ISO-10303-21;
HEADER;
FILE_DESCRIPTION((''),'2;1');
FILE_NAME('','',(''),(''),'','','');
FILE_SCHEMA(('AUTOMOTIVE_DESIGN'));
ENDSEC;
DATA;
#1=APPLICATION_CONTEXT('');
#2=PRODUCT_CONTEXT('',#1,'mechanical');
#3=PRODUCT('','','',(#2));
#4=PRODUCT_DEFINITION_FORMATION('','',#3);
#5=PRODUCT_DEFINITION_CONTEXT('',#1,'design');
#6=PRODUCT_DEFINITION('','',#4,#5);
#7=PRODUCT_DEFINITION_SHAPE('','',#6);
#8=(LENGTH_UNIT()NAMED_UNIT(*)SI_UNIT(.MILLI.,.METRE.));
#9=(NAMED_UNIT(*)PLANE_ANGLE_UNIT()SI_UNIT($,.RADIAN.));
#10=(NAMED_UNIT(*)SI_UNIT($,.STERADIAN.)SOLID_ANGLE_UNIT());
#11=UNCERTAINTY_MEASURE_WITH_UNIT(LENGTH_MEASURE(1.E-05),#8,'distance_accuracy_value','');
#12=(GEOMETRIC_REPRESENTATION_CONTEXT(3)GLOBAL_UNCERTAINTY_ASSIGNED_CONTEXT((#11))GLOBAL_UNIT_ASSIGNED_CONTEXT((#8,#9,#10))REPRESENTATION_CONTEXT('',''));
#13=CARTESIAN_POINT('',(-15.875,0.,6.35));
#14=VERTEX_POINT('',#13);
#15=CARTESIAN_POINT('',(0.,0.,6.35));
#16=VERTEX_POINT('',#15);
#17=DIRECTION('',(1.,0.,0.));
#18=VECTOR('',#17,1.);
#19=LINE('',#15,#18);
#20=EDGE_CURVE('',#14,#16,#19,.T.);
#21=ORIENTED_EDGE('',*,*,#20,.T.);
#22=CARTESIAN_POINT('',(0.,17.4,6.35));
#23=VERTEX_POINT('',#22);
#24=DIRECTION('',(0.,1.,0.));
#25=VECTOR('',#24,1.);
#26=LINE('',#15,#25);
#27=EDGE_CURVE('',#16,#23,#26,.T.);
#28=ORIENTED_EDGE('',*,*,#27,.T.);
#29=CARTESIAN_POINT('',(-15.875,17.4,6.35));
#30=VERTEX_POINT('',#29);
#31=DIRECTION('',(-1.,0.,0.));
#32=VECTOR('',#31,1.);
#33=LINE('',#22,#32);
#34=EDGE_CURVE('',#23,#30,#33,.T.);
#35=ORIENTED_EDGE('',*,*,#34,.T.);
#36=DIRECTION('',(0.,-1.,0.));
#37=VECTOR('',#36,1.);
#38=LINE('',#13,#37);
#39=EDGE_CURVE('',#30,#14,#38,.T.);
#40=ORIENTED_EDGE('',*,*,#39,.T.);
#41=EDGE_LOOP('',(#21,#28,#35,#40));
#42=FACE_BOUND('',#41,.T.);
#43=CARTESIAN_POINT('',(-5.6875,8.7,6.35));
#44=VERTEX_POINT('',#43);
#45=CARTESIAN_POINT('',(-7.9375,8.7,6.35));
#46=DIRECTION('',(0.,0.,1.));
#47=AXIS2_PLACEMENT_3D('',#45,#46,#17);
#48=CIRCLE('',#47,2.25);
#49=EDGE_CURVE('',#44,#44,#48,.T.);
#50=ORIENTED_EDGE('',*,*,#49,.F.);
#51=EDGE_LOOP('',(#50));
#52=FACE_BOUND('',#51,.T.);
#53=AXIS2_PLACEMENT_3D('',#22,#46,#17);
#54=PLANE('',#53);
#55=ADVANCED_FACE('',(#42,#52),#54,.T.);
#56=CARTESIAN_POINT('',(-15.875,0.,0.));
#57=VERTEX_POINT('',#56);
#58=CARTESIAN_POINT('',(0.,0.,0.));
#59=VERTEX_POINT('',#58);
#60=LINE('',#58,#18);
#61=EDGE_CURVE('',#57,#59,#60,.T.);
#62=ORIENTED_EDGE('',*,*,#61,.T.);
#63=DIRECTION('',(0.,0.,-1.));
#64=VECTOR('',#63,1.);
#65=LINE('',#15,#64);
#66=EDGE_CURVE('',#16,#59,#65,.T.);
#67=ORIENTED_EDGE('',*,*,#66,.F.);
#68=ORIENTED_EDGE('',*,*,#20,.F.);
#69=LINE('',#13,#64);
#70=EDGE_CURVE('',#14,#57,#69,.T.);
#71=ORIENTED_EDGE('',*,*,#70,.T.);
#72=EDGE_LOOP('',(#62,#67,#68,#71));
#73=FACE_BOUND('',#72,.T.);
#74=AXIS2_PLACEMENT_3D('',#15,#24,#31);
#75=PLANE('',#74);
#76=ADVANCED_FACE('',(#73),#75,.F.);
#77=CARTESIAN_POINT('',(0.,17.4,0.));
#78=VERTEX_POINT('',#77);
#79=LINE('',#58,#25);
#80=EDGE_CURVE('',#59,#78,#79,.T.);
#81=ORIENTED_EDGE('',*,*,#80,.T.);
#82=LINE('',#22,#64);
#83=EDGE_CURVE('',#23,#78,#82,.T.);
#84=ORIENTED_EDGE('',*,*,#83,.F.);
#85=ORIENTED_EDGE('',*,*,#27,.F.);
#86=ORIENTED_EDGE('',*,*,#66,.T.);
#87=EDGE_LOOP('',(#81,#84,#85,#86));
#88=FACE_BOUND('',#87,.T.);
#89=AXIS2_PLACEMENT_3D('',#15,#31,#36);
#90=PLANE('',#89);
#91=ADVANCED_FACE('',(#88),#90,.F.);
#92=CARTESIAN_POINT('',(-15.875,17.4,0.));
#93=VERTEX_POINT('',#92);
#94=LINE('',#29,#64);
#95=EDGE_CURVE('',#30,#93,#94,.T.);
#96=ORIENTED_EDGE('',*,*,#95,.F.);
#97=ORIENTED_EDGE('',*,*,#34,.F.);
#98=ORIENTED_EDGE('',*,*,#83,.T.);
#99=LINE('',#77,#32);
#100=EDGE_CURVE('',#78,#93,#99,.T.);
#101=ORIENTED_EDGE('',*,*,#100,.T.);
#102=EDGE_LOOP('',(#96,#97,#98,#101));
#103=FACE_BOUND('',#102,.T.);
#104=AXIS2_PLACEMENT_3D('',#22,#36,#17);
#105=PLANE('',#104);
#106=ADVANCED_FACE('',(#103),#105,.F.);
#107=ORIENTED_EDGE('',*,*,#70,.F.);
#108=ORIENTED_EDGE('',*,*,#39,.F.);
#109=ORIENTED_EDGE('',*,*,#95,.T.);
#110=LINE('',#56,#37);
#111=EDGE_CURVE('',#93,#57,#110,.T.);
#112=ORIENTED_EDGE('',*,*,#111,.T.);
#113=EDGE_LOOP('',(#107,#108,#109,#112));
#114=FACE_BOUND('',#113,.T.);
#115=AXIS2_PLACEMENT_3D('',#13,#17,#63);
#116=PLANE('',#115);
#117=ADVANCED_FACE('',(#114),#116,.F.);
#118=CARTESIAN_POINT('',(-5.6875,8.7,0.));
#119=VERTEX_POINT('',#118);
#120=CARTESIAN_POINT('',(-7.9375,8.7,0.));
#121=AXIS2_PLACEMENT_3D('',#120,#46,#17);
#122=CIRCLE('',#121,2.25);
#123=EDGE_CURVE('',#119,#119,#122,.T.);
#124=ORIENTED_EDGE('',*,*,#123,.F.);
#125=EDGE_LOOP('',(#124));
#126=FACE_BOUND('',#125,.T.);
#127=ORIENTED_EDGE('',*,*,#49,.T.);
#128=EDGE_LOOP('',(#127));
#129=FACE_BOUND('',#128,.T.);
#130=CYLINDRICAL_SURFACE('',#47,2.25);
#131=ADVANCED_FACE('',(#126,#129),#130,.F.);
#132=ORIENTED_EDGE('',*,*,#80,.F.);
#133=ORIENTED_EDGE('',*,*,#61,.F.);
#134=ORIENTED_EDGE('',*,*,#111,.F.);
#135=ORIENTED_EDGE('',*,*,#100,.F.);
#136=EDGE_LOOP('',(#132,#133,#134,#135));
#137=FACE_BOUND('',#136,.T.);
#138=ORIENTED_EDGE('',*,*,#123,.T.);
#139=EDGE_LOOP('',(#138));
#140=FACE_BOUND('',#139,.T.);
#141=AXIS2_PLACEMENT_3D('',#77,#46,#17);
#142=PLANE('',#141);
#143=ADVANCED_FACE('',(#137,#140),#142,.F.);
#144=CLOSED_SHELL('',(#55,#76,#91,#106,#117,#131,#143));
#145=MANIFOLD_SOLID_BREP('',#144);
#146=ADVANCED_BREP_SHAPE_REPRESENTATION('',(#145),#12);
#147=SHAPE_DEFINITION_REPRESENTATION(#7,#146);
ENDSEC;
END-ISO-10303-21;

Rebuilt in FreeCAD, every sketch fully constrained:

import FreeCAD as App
import Part
import Sketcher
Q = App.Units.Quantity


def add_polygon(sketch, points):
    """Adds a closed chain of lines whose ends are joined by coincident constraints."""
    first, n = sketch.GeometryCount, len(points)
    for a, b in zip(points, points[1:] + points[:1]):
        sketch.addGeometry(Part.LineSegment(App.Vector(*a, 0), App.Vector(*b, 0)), False)
    for i in range(n):
        sketch.addConstraint(Sketcher.Constraint("Coincident", first + i, 2, first + (i + 1) % n, 1))

doc = App.newDocument("Part")
params = doc.addObject("Spreadsheet::Sheet", "Params")
for row, (alias, value) in enumerate([
    ("sketch1_width", "0.625 in"),
    ("pad1_length", "0.25 in"),
    ("hole_diameter", "4.5 mm"),
    ("hole_depth", "0.5 in"),
], start=1):
    params.set(f"A{row}", alias)
    params.set(f"B{row}", "=" + value)
    params.setAlias(f"B{row}", alias)

body = doc.addObject("PartDesign::Body", "Body")

sketch1 = body.newObject("Sketcher::SketchObject", "Sketch")
sketch1.AttachmentSupport = (doc.getObject("XY_Plane"), [""])
sketch1.MapMode = "FlatFace"
add_polygon(sketch1, [(-16, 17), (-16, 0), (0, 0), (0, 17)])
sketch1.addConstraint([
    Sketcher.Constraint("Vertical", 0),
    Sketcher.Constraint("Horizontal", 1),
    Sketcher.Constraint("Vertical", 2),
    Sketcher.Constraint("Horizontal", 3),
    Sketcher.Constraint("Coincident", 1, 2, -1, 1),
    Sketcher.Constraint("DistanceX", 1, 1, 1, 2, Q("0.625 in")),
    Sketcher.Constraint("DistanceY", 0, 2, 0, 1, 17.4),
])
sketch1.setExpression("Constraints[9]", "Params.sketch1_width")
pad1 = body.newObject("PartDesign::Pad", "Pad")
pad1.Profile = sketch1
pad1.setExpression("Length", "Params.pad1_length")

sketch2 = body.newObject("Sketcher::SketchObject", "Sketch001")
sketch2.AttachmentSupport = (doc.getObject("XY_Plane"), [""])
sketch2.MapMode = "FlatFace"
sketch2.AttachmentOffset = App.Placement(App.Vector(0, 0, 0.25 * 25.4), App.Rotation())
sketch2.addGeometry(Part.Circle(App.Vector(-7.9, 8.7, 0), App.Vector(0, 0, 1), 2.2), False)
sketch2.addConstraint([
    Sketcher.Constraint("Diameter", 0, 4.5),
    Sketcher.Constraint("DistanceX", 0, 3, -1, 1, Q("0.3125 in")),
    Sketcher.Constraint("DistanceY", -1, 1, 0, 3, 8.7),
])
doc.recompute()
hole = body.newObject("PartDesign::Hole", "Hole")
hole.Profile = sketch2
hole.ThreadType = "None"
hole.setExpression("Diameter", "Params.hole_diameter")
hole.DepthType = "Dimension"
hole.setExpression("Depth", "Params.hole_depth")
hole.DrillPoint = "Angled"
hole.DrillPointAngle = 118

doc.recompute()
